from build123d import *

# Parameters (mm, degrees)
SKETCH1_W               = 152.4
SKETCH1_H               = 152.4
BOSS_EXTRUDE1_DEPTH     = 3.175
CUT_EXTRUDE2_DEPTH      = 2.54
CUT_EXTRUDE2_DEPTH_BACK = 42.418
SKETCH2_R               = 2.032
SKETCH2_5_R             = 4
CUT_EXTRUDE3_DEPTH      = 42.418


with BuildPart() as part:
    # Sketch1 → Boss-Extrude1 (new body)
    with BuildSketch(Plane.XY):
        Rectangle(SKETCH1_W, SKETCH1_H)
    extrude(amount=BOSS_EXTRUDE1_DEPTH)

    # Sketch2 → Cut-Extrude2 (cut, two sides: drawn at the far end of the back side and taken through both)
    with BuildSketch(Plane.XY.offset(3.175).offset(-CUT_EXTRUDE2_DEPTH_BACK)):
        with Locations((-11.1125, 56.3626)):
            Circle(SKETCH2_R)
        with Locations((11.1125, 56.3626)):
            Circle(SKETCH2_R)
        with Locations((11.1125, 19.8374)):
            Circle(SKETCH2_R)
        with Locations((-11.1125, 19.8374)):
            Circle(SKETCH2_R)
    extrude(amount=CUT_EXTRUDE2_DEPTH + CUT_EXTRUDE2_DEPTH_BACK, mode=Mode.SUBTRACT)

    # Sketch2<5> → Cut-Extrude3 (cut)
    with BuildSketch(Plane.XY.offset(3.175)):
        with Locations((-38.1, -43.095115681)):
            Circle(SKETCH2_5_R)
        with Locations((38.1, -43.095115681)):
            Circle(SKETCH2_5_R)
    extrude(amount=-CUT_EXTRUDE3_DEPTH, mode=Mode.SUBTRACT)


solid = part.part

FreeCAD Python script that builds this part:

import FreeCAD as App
import Part
import Sketcher
Q = App.Units.Quantity


def add_polygon(sketch, points):
    """Adds a closed chain of lines whose ends are joined by coincident constraints."""
    first, n = sketch.GeometryCount, len(points)
    for a, b in zip(points, points[1:] + points[:1]):
        sketch.addGeometry(Part.LineSegment(App.Vector(*a, 0), App.Vector(*b, 0)), False)
    for i in range(n):
        sketch.addConstraint(Sketcher.Constraint("Coincident", first + i, 2, first + (i + 1) % n, 1))

doc = App.newDocument("Part")
body = doc.addObject("PartDesign::Body", "Body")

sketch1 = doc.addObject("Sketcher::SketchObject", "Sketch")
body.addObject(sketch1)
sketch1.AttachmentSupport = (doc.XY_Plane, [""])
sketch1.MapMode = "FlatFace"
add_polygon(sketch1, [(-76.2, 76.2), (-76.2, -76.2), (76.2, -76.2), (76.2, 76.2)])
sketch1.addConstraint([
    Sketcher.Constraint("Vertical", 0),
    Sketcher.Constraint("Horizontal", 1),
    Sketcher.Constraint("Vertical", 2),
    Sketcher.Constraint("Horizontal", 3),
    Sketcher.Constraint("Symmetric", 0, 2, 2, 2, -1, 1),
    Sketcher.Constraint("Equal", 3, 0),
    Sketcher.Constraint("DistanceX", 1, 1, 1, 2, Q("6 in")),
])
pad1 = doc.addObject("PartDesign::Pad", "Pad")
body.addObject(pad1)
pad1.Profile = sketch1
pad1.Length = Q("0.125 in")

sketch2 = doc.addObject("Sketcher::SketchObject", "Sketch001")
body.addObject(sketch2)
sketch2.AttachmentSupport = (doc.XY_Plane, [""])
sketch2.MapMode = "FlatFace"
sketch2.AttachmentOffset = App.Placement(App.Vector(0, 0, 0.125 * 25.4), App.Rotation())
sketch2.addGeometry([
    Part.Circle(App.Vector(-11.1125, 56.3626, 0), App.Vector(0, 0, 1), 2.032),
    Part.Circle(App.Vector(11.1125, 56.3626, 0), App.Vector(0, 0, 1), 2.032),
    Part.Circle(App.Vector(11.1125, 19.8374, 0), App.Vector(0, 0, 1), 2.032),
    Part.Circle(App.Vector(-11.1125, 19.8374, 0), App.Vector(0, 0, 1), 2.032),
], False)
sketch2.addConstraint([
    Sketcher.Constraint("Equal", 0, 1),
    Sketcher.Constraint("Equal", 1, 2),
    Sketcher.Constraint("Equal", 2, 3),
    Sketcher.Constraint("Symmetric", 0, 3, 1, 3, -2),
    Sketcher.Constraint("Symmetric", 2, 3, 3, 3, -2),
    Sketcher.Constraint("Vertical", 1, 3, 2, 3),
    Sketcher.Constraint("Diameter", 0, Q("0.16 in")),
    Sketcher.Constraint("DistanceX", 0, 3, -1, 1, Q("0.4375 in")),
    Sketcher.Constraint("DistanceY", -1, 1, 0, 3, Q("2.219 in")),
    Sketcher.Constraint("DistanceY", -1, 1, 2, 3, Q("0.781 in")),
])
pocket1 = doc.addObject("PartDesign::Pocket", "Pocket")
body.addObject(pocket1)
pocket1.Profile = sketch2
pocket1.Type = "ThroughAll"
pocket1.Midplane = True

sketch3 = doc.addObject("Sketcher::SketchObject", "Sketch002")
body.addObject(sketch3)
sketch3.AttachmentSupport = (doc.XY_Plane, [""])
sketch3.MapMode = "FlatFace"
sketch3.AttachmentOffset = App.Placement(App.Vector(0, 0, 0.125 * 25.4), App.Rotation())
sketch3.addGeometry([
    Part.Circle(App.Vector(-38.1, -43.095116, 0), App.Vector(0, 0, 1), 4),
    Part.Circle(App.Vector(38.1, -43.095116, 0), App.Vector(0, 0, 1), 4),
], False)
sketch3.addConstraint([
    Sketcher.Constraint("Equal", 0, 1),
    Sketcher.Constraint("Symmetric", 0, 3, 1, 3, -2),
    Sketcher.Constraint("DistanceX", 0, 3, 1, 3, Q("3 in")),
    Sketcher.Constraint("Diameter", 0, 8.0),
    Sketcher.Constraint("DistanceY", 0, 3, -1, 1, 43.095116),
])
pocket2 = doc.addObject("PartDesign::Pocket", "Pocket001")
body.addObject(pocket2)
pocket2.Profile = sketch3
pocket2.Length = Q("1.67 in")

doc.recompute()
